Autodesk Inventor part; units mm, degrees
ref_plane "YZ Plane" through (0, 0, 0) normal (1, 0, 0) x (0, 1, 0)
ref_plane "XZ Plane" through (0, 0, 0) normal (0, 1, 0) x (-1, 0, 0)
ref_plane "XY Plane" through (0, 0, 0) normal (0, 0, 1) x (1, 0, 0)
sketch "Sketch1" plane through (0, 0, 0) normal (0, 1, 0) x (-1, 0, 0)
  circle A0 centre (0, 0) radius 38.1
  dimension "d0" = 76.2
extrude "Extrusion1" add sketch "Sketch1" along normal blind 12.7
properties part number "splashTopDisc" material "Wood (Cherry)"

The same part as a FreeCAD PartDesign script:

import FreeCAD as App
import Part
import Sketcher

V = App.Vector
Q = App.Units.Quantity

doc = App.newDocument("Part")
body = doc.addObject("PartDesign::Body", "Body")

sketch1 = body.newObject("Sketcher::SketchObject", "Sketch")
sketch1.AttachmentSupport = (doc.getObject("XZ_Plane"), [""])
sketch1.MapMode = "FlatFace"
sketch1.addGeometry(Part.Circle(V(0, 0, 0), V(0, 0, 1), 38), False)
sketch1.addConstraint([
    Sketcher.Constraint("Coincident", 0, 3, -1, 1),
    Sketcher.Constraint("Diameter", 0, Q("3 in")),
])
pad1 = body.newObject("PartDesign::Pad", "Pad")
pad1.Profile = sketch1
pad1.Length = Q("0.5 in")
pad1.Reversed = True

doc.recompute()
